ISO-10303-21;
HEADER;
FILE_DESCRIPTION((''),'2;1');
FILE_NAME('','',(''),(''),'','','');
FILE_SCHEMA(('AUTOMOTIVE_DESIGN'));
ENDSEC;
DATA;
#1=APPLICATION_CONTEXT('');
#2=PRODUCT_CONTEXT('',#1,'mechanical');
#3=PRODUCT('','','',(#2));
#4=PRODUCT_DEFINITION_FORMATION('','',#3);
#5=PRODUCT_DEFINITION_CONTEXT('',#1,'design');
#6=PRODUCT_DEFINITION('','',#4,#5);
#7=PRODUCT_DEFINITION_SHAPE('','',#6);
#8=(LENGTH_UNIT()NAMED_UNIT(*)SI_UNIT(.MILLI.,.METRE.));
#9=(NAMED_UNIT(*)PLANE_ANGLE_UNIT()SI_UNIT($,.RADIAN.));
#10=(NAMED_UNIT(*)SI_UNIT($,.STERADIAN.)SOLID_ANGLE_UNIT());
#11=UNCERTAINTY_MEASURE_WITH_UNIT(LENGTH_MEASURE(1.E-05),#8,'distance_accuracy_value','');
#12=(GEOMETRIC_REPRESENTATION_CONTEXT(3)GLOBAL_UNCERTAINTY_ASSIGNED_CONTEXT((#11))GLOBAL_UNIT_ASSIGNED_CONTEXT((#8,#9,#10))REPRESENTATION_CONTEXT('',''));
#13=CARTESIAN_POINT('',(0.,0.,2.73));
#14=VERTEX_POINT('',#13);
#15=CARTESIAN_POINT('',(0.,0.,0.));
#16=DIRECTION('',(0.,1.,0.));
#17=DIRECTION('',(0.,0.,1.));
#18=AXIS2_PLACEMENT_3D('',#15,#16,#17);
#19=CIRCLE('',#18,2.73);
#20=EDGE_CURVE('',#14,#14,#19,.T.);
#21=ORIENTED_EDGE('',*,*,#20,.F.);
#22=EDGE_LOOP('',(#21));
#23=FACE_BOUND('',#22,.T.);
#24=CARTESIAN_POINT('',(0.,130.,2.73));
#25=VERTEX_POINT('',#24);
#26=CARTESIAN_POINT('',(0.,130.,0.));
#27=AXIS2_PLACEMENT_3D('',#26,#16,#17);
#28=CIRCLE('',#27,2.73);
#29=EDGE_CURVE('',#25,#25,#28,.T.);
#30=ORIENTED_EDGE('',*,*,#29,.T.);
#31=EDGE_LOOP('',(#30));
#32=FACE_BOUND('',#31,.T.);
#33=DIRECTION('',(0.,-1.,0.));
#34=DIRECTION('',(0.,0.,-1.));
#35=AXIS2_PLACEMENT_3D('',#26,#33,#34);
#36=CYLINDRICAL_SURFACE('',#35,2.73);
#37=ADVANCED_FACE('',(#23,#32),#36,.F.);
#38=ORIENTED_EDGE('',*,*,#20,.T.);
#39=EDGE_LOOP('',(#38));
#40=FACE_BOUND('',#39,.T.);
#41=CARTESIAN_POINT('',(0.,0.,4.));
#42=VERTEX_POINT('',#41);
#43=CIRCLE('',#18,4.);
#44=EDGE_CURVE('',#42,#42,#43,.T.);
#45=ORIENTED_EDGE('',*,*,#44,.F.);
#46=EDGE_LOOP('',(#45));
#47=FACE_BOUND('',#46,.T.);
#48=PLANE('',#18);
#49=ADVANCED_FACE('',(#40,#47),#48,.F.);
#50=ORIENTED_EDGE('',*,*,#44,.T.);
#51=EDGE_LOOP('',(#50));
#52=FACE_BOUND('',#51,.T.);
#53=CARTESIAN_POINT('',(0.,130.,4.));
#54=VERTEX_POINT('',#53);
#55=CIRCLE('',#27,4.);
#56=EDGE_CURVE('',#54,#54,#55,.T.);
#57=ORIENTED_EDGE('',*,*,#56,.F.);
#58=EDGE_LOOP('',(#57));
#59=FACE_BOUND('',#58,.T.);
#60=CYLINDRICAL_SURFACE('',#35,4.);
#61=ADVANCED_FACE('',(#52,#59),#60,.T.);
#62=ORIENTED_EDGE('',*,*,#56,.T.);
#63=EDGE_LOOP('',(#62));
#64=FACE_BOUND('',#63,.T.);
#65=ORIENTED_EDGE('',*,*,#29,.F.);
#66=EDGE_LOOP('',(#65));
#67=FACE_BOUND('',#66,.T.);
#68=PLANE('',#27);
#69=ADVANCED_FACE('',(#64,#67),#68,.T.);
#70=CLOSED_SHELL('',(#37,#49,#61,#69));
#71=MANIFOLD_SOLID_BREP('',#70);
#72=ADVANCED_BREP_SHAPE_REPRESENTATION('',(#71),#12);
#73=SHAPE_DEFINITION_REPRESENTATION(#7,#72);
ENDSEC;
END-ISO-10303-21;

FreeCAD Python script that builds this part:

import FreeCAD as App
import Part
import Sketcher
Q = App.Units.Quantity


def faces_at(feature, points):
    """Names of the faces that lie closest to the given points."""
    faces = feature.Shape.Faces
    near = lambda p: min(range(len(faces)), key=lambda i: faces[i].distToShape(Part.Vertex(*p))[0])
    return sorted({f"Face{near(p) + 1}" for p in points})

doc = App.newDocument("Part")
params = doc.addObject("Spreadsheet::Sheet", "Params")
for row, (alias, value) in enumerate([
    ("sketch1_diameter", "8 mm"),
    ("pad1_length", "130 mm"),
    ("thickness_wall", "1.27 mm"),
], start=1):
    params.set(f"A{row}", alias)
    params.set(f"B{row}", "=" + value)
    params.setAlias(f"B{row}", alias)

body = doc.addObject("PartDesign::Body", "Body")

sketch1 = doc.addObject("Sketcher::SketchObject", "Sketch")
body.addObject(sketch1)
sketch1.AttachmentSupport = (doc.XZ_Plane, [""])
sketch1.MapMode = "FlatFace"
sketch1.addGeometry(Part.Circle(App.Vector(0, 0, 0), App.Vector(0, 0, 1), 4), False)
sketch1.addConstraint(Sketcher.Constraint("Coincident", 0, 3, -1, 1))
sketch1.addConstraint(Sketcher.Constraint("Diameter", 0, Q("8 mm")))
sketch1.setExpression("Constraints[1]", "Params.sketch1_diameter")
pad1 = doc.addObject("PartDesign::Pad", "Pad")
body.addObject(pad1)
pad1.Profile = sketch1
pad1.setExpression("Length", "Params.pad1_length")
pad1.Reversed = True
doc.recompute()

thickness = doc.addObject("PartDesign::Thickness", "Thickness")
body.addObject(thickness)
thickness.Base = (pad1, faces_at(pad1, [(0, 130, 0), (0, 0, 0)]))
thickness.setExpression("Value", "Params.thickness_wall")
thickness.Reversed = True
thickness.Join = "Intersection"

doc.recompute()
